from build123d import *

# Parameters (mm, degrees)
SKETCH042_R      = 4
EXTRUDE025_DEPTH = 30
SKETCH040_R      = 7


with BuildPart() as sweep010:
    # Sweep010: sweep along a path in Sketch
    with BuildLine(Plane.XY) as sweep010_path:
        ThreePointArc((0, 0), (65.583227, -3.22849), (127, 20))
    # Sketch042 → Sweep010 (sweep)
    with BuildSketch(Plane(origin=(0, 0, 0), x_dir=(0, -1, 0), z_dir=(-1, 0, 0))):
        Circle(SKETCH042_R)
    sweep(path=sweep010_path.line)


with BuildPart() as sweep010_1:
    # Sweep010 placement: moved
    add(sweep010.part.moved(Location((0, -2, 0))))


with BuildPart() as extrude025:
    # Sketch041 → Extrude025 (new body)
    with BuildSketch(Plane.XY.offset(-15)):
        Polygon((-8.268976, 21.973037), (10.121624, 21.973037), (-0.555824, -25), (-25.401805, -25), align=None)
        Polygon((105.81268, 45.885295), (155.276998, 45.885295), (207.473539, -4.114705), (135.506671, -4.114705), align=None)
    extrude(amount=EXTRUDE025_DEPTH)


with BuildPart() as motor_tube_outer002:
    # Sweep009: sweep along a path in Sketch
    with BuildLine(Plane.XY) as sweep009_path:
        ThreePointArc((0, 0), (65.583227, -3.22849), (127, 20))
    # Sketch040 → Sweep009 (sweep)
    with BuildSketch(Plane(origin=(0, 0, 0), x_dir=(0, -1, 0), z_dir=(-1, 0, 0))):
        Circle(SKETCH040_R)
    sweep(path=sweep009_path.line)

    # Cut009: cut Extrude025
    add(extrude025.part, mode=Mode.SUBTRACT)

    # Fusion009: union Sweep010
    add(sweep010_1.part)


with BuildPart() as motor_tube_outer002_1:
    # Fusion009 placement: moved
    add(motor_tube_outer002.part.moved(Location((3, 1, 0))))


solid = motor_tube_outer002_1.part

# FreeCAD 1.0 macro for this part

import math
import FreeCAD as App
import Part
import Sketcher
from FreeCAD import Vector

doc = App.newDocument("Part")
body = doc.addObject("PartDesign::Body", "Body")

# Sketch on YZ plane
sketch1 = body.newObject("Sketcher::SketchObject", "Sketch")
sketch1.AttachmentSupport = (doc.getObject("YZ_Plane"), [""])
sketch1.MapMode = "FlatFace"
sketch1.addGeometry(Part.Circle(Vector(0, 0, 0), Vector(0, 0, 1), 4), False)
sketch1.addConstraint(Sketcher.Constraint("Coincident", 0, 3, -1, 1))
sketch1.addConstraint(Sketcher.Constraint("Diameter", 0, 8.0))

# Sketch on XY plane
sketch2 = body.newObject("Sketcher::SketchObject", "Sketch001")
sketch2.AttachmentSupport = (doc.getObject("XY_Plane"), [""])
sketch2.MapMode = "FlatFace"
sketch2.addGeometry(Part.ArcOfCircle(Part.Circle(Vector(40.540386, 155.79355, 0), Vector(0, 0, 1), 160.981841), math.radians(-104.58595), math.radians(-57.515134)), False)
sketch2.addConstraint(Sketcher.Constraint("Coincident", 0, 1, -1, 1))
sketch2.addConstraint(Sketcher.Constraint("DistanceX", -1, 1, 0, 2, 127.0))
sketch2.addConstraint(Sketcher.Constraint("DistanceY", -1, 1, 0, 2, 20.0))
sketch2.addConstraint(Sketcher.Constraint("Radius", 0, 160.981841))
doc.recompute()

additivepipe = body.newObject("PartDesign::AdditivePipe", "AdditivePipe")
additivepipe.Profile = sketch1
additivepipe.Spine = (sketch2, ["Edge1"])
body2 = doc.addObject("PartDesign::Body", "Body001")
doc.recompute()

body.Placement = App.Placement(Vector(0, -2, 0), App.Rotation(Vector(0, 0, 1), 0))
boolean = body2.newObject("PartDesign::Boolean", "Boolean")
boolean.Type = "Fuse"
boolean.addObjects([body])
body3 = doc.addObject("PartDesign::Body", "Body002")
body3.AllowCompound = True

# Sketch on XY plane
sketch3 = body3.newObject("Sketcher::SketchObject", "Sketch002")
sketch3.AttachmentSupport = (doc.getObject("XY_Plane002"), [""])
sketch3.MapMode = "FlatFace"
sketch3.AttachmentOffset = App.Placement(Vector(0, 0, -15), App.Rotation())
sketch3.addGeometry(Part.LineSegment(Vector(10.121624, 21.973037, 0), Vector(-8.268976, 21.973037, 0)), False)
sketch3.addGeometry(Part.LineSegment(Vector(-8.268976, 21.973037, 0), Vector(-25.401805, -25, 0)), False)
sketch3.addGeometry(Part.LineSegment(Vector(-25.401805, -25, 0), Vector(-0.555824, -25, 0)), False)
sketch3.addGeometry(Part.LineSegment(Vector(-0.555824, -25, 0), Vector(10.121624, 21.973037, 0)), False)
sketch3.addGeometry(Part.LineSegment(Vector(155.276998, 45.885295, 0), Vector(105.81268, 45.885295, 0)), False)
sketch3.addGeometry(Part.LineSegment(Vector(105.81268, 45.885295, 0), Vector(135.506671, -4.114705, 0)), False)
sketch3.addGeometry(Part.LineSegment(Vector(135.506671, -4.114705, 0), Vector(207.473539, -4.114705, 0)), False)
sketch3.addGeometry(Part.LineSegment(Vector(207.473539, -4.114705, 0), Vector(155.276998, 45.885295, 0)), False)
sketch3.addConstraint(Sketcher.Constraint("Coincident", 0, 2, 1, 1))
sketch3.addConstraint(Sketcher.Constraint("Coincident", 1, 2, 2, 1))
sketch3.addConstraint(Sketcher.Constraint("Coincident", 2, 2, 3, 1))
sketch3.addConstraint(Sketcher.Constraint("Coincident", 3, 2, 0, 1))
sketch3.addConstraint(Sketcher.Constraint("Coincident", 4, 2, 5, 1))
sketch3.addConstraint(Sketcher.Constraint("Coincident", 5, 2, 6, 1))
sketch3.addConstraint(Sketcher.Constraint("Coincident", 6, 2, 7, 1))
sketch3.addConstraint(Sketcher.Constraint("Coincident", 7, 2, 4, 1))
sketch3.addConstraint(Sketcher.Constraint("Horizontal", 0))
sketch3.addConstraint(Sketcher.Constraint("Horizontal", 2))
sketch3.addConstraint(Sketcher.Constraint("Horizontal", 4))
sketch3.addConstraint(Sketcher.Constraint("Horizontal", 6))
sketch3.addConstraint(Sketcher.Constraint("Distance", 1, 50.0))
sketch3.addConstraint(Sketcher.Constraint("DistanceY", 1, 2, -1, 1, 25.0))
sketch3.addConstraint(Sketcher.Constraint("DistanceY", 5, 2, 4, 2, 50.0))
sketch3.addConstraint(Sketcher.Constraint("DistanceX", 0, 2, 0, 1, 18.3906))
sketch3.addConstraint(Sketcher.Constraint("DistanceX", -1, 1, 7, 2, 155.276998))
sketch3.addConstraint(Sketcher.Constraint("Distance", 3, 48.1713))
sketch3.addConstraint(Sketcher.Constraint("DistanceX", 2, 1, 2, 2, 24.845981))
sketch3.addConstraint(Sketcher.Constraint("Distance", 5, 58.152671))
sketch3.addConstraint(Sketcher.Constraint("DistanceX", 4, 2, 4, 1, 49.464318))
sketch3.addConstraint(Sketcher.Constraint("DistanceX", 6, 1, 6, 2, 71.966868))
sketch3.addConstraint(Sketcher.Constraint("DistanceX", 0, 2, -1, 1, 8.268976))
sketch3.addConstraint(Sketcher.Constraint("DistanceY", -1, 1, 4, 2, 45.885295))
pad1 = body3.newObject("PartDesign::Pad", "Pad")
pad1.Profile = sketch3
pad1.Length = 30
body4 = doc.addObject("PartDesign::Body", "Body003")

# Sketch on YZ plane
sketch4 = body4.newObject("Sketcher::SketchObject", "Sketch003")
sketch4.AttachmentSupport = (doc.getObject("YZ_Plane003"), [""])
sketch4.MapMode = "FlatFace"
sketch4.addGeometry(Part.Circle(Vector(0, 0, 0), Vector(0, 0, 1), 7), False)
sketch4.addConstraint(Sketcher.Constraint("Coincident", 0, 3, -1, 1))
sketch4.addConstraint(Sketcher.Constraint("Diameter", 0, 14.0))

# Sketch on XY plane
sketch5 = body4.newObject("Sketcher::SketchObject", "Sketch004")
sketch5.AttachmentSupport = (doc.getObject("XY_Plane003"), [""])
sketch5.MapMode = "FlatFace"
sketch5.addGeometry(Part.ArcOfCircle(Part.Circle(Vector(40.540386, 155.79355, 0), Vector(0, 0, 1), 160.981841), math.radians(-104.58595), math.radians(-57.515134)), False)
sketch5.addConstraint(Sketcher.Constraint("Coincident", 0, 1, -1, 1))
sketch5.addConstraint(Sketcher.Constraint("DistanceX", -1, 1, 0, 2, 127.0))
sketch5.addConstraint(Sketcher.Constraint("DistanceY", -1, 1, 0, 2, 20.0))
sketch5.addConstraint(Sketcher.Constraint("Radius", 0, 160.981841))
doc.recompute()

additivepipe2 = body4.newObject("PartDesign::AdditivePipe", "AdditivePipe001")
additivepipe2.Profile = sketch4
additivepipe2.Spine = (sketch5, ["Edge1"])
doc.recompute()

boolean2 = body4.newObject("PartDesign::Boolean", "Boolean001")
boolean2.Type = "Cut"
boolean2.addObjects([body3])
doc.recompute()

boolean3 = body4.newObject("PartDesign::Boolean", "Boolean002")
boolean3.Type = "Fuse"
boolean3.addObjects([body2])
body5 = doc.addObject("PartDesign::Body", "Body004")
doc.recompute()

body4.Placement = App.Placement(Vector(3, 1, 0), App.Rotation(Vector(0, 0, 1), 0))
boolean4 = body5.newObject("PartDesign::Boolean", "Boolean003")
boolean4.Type = "Fuse"
boolean4.addObjects([body4])

doc.recompute()
